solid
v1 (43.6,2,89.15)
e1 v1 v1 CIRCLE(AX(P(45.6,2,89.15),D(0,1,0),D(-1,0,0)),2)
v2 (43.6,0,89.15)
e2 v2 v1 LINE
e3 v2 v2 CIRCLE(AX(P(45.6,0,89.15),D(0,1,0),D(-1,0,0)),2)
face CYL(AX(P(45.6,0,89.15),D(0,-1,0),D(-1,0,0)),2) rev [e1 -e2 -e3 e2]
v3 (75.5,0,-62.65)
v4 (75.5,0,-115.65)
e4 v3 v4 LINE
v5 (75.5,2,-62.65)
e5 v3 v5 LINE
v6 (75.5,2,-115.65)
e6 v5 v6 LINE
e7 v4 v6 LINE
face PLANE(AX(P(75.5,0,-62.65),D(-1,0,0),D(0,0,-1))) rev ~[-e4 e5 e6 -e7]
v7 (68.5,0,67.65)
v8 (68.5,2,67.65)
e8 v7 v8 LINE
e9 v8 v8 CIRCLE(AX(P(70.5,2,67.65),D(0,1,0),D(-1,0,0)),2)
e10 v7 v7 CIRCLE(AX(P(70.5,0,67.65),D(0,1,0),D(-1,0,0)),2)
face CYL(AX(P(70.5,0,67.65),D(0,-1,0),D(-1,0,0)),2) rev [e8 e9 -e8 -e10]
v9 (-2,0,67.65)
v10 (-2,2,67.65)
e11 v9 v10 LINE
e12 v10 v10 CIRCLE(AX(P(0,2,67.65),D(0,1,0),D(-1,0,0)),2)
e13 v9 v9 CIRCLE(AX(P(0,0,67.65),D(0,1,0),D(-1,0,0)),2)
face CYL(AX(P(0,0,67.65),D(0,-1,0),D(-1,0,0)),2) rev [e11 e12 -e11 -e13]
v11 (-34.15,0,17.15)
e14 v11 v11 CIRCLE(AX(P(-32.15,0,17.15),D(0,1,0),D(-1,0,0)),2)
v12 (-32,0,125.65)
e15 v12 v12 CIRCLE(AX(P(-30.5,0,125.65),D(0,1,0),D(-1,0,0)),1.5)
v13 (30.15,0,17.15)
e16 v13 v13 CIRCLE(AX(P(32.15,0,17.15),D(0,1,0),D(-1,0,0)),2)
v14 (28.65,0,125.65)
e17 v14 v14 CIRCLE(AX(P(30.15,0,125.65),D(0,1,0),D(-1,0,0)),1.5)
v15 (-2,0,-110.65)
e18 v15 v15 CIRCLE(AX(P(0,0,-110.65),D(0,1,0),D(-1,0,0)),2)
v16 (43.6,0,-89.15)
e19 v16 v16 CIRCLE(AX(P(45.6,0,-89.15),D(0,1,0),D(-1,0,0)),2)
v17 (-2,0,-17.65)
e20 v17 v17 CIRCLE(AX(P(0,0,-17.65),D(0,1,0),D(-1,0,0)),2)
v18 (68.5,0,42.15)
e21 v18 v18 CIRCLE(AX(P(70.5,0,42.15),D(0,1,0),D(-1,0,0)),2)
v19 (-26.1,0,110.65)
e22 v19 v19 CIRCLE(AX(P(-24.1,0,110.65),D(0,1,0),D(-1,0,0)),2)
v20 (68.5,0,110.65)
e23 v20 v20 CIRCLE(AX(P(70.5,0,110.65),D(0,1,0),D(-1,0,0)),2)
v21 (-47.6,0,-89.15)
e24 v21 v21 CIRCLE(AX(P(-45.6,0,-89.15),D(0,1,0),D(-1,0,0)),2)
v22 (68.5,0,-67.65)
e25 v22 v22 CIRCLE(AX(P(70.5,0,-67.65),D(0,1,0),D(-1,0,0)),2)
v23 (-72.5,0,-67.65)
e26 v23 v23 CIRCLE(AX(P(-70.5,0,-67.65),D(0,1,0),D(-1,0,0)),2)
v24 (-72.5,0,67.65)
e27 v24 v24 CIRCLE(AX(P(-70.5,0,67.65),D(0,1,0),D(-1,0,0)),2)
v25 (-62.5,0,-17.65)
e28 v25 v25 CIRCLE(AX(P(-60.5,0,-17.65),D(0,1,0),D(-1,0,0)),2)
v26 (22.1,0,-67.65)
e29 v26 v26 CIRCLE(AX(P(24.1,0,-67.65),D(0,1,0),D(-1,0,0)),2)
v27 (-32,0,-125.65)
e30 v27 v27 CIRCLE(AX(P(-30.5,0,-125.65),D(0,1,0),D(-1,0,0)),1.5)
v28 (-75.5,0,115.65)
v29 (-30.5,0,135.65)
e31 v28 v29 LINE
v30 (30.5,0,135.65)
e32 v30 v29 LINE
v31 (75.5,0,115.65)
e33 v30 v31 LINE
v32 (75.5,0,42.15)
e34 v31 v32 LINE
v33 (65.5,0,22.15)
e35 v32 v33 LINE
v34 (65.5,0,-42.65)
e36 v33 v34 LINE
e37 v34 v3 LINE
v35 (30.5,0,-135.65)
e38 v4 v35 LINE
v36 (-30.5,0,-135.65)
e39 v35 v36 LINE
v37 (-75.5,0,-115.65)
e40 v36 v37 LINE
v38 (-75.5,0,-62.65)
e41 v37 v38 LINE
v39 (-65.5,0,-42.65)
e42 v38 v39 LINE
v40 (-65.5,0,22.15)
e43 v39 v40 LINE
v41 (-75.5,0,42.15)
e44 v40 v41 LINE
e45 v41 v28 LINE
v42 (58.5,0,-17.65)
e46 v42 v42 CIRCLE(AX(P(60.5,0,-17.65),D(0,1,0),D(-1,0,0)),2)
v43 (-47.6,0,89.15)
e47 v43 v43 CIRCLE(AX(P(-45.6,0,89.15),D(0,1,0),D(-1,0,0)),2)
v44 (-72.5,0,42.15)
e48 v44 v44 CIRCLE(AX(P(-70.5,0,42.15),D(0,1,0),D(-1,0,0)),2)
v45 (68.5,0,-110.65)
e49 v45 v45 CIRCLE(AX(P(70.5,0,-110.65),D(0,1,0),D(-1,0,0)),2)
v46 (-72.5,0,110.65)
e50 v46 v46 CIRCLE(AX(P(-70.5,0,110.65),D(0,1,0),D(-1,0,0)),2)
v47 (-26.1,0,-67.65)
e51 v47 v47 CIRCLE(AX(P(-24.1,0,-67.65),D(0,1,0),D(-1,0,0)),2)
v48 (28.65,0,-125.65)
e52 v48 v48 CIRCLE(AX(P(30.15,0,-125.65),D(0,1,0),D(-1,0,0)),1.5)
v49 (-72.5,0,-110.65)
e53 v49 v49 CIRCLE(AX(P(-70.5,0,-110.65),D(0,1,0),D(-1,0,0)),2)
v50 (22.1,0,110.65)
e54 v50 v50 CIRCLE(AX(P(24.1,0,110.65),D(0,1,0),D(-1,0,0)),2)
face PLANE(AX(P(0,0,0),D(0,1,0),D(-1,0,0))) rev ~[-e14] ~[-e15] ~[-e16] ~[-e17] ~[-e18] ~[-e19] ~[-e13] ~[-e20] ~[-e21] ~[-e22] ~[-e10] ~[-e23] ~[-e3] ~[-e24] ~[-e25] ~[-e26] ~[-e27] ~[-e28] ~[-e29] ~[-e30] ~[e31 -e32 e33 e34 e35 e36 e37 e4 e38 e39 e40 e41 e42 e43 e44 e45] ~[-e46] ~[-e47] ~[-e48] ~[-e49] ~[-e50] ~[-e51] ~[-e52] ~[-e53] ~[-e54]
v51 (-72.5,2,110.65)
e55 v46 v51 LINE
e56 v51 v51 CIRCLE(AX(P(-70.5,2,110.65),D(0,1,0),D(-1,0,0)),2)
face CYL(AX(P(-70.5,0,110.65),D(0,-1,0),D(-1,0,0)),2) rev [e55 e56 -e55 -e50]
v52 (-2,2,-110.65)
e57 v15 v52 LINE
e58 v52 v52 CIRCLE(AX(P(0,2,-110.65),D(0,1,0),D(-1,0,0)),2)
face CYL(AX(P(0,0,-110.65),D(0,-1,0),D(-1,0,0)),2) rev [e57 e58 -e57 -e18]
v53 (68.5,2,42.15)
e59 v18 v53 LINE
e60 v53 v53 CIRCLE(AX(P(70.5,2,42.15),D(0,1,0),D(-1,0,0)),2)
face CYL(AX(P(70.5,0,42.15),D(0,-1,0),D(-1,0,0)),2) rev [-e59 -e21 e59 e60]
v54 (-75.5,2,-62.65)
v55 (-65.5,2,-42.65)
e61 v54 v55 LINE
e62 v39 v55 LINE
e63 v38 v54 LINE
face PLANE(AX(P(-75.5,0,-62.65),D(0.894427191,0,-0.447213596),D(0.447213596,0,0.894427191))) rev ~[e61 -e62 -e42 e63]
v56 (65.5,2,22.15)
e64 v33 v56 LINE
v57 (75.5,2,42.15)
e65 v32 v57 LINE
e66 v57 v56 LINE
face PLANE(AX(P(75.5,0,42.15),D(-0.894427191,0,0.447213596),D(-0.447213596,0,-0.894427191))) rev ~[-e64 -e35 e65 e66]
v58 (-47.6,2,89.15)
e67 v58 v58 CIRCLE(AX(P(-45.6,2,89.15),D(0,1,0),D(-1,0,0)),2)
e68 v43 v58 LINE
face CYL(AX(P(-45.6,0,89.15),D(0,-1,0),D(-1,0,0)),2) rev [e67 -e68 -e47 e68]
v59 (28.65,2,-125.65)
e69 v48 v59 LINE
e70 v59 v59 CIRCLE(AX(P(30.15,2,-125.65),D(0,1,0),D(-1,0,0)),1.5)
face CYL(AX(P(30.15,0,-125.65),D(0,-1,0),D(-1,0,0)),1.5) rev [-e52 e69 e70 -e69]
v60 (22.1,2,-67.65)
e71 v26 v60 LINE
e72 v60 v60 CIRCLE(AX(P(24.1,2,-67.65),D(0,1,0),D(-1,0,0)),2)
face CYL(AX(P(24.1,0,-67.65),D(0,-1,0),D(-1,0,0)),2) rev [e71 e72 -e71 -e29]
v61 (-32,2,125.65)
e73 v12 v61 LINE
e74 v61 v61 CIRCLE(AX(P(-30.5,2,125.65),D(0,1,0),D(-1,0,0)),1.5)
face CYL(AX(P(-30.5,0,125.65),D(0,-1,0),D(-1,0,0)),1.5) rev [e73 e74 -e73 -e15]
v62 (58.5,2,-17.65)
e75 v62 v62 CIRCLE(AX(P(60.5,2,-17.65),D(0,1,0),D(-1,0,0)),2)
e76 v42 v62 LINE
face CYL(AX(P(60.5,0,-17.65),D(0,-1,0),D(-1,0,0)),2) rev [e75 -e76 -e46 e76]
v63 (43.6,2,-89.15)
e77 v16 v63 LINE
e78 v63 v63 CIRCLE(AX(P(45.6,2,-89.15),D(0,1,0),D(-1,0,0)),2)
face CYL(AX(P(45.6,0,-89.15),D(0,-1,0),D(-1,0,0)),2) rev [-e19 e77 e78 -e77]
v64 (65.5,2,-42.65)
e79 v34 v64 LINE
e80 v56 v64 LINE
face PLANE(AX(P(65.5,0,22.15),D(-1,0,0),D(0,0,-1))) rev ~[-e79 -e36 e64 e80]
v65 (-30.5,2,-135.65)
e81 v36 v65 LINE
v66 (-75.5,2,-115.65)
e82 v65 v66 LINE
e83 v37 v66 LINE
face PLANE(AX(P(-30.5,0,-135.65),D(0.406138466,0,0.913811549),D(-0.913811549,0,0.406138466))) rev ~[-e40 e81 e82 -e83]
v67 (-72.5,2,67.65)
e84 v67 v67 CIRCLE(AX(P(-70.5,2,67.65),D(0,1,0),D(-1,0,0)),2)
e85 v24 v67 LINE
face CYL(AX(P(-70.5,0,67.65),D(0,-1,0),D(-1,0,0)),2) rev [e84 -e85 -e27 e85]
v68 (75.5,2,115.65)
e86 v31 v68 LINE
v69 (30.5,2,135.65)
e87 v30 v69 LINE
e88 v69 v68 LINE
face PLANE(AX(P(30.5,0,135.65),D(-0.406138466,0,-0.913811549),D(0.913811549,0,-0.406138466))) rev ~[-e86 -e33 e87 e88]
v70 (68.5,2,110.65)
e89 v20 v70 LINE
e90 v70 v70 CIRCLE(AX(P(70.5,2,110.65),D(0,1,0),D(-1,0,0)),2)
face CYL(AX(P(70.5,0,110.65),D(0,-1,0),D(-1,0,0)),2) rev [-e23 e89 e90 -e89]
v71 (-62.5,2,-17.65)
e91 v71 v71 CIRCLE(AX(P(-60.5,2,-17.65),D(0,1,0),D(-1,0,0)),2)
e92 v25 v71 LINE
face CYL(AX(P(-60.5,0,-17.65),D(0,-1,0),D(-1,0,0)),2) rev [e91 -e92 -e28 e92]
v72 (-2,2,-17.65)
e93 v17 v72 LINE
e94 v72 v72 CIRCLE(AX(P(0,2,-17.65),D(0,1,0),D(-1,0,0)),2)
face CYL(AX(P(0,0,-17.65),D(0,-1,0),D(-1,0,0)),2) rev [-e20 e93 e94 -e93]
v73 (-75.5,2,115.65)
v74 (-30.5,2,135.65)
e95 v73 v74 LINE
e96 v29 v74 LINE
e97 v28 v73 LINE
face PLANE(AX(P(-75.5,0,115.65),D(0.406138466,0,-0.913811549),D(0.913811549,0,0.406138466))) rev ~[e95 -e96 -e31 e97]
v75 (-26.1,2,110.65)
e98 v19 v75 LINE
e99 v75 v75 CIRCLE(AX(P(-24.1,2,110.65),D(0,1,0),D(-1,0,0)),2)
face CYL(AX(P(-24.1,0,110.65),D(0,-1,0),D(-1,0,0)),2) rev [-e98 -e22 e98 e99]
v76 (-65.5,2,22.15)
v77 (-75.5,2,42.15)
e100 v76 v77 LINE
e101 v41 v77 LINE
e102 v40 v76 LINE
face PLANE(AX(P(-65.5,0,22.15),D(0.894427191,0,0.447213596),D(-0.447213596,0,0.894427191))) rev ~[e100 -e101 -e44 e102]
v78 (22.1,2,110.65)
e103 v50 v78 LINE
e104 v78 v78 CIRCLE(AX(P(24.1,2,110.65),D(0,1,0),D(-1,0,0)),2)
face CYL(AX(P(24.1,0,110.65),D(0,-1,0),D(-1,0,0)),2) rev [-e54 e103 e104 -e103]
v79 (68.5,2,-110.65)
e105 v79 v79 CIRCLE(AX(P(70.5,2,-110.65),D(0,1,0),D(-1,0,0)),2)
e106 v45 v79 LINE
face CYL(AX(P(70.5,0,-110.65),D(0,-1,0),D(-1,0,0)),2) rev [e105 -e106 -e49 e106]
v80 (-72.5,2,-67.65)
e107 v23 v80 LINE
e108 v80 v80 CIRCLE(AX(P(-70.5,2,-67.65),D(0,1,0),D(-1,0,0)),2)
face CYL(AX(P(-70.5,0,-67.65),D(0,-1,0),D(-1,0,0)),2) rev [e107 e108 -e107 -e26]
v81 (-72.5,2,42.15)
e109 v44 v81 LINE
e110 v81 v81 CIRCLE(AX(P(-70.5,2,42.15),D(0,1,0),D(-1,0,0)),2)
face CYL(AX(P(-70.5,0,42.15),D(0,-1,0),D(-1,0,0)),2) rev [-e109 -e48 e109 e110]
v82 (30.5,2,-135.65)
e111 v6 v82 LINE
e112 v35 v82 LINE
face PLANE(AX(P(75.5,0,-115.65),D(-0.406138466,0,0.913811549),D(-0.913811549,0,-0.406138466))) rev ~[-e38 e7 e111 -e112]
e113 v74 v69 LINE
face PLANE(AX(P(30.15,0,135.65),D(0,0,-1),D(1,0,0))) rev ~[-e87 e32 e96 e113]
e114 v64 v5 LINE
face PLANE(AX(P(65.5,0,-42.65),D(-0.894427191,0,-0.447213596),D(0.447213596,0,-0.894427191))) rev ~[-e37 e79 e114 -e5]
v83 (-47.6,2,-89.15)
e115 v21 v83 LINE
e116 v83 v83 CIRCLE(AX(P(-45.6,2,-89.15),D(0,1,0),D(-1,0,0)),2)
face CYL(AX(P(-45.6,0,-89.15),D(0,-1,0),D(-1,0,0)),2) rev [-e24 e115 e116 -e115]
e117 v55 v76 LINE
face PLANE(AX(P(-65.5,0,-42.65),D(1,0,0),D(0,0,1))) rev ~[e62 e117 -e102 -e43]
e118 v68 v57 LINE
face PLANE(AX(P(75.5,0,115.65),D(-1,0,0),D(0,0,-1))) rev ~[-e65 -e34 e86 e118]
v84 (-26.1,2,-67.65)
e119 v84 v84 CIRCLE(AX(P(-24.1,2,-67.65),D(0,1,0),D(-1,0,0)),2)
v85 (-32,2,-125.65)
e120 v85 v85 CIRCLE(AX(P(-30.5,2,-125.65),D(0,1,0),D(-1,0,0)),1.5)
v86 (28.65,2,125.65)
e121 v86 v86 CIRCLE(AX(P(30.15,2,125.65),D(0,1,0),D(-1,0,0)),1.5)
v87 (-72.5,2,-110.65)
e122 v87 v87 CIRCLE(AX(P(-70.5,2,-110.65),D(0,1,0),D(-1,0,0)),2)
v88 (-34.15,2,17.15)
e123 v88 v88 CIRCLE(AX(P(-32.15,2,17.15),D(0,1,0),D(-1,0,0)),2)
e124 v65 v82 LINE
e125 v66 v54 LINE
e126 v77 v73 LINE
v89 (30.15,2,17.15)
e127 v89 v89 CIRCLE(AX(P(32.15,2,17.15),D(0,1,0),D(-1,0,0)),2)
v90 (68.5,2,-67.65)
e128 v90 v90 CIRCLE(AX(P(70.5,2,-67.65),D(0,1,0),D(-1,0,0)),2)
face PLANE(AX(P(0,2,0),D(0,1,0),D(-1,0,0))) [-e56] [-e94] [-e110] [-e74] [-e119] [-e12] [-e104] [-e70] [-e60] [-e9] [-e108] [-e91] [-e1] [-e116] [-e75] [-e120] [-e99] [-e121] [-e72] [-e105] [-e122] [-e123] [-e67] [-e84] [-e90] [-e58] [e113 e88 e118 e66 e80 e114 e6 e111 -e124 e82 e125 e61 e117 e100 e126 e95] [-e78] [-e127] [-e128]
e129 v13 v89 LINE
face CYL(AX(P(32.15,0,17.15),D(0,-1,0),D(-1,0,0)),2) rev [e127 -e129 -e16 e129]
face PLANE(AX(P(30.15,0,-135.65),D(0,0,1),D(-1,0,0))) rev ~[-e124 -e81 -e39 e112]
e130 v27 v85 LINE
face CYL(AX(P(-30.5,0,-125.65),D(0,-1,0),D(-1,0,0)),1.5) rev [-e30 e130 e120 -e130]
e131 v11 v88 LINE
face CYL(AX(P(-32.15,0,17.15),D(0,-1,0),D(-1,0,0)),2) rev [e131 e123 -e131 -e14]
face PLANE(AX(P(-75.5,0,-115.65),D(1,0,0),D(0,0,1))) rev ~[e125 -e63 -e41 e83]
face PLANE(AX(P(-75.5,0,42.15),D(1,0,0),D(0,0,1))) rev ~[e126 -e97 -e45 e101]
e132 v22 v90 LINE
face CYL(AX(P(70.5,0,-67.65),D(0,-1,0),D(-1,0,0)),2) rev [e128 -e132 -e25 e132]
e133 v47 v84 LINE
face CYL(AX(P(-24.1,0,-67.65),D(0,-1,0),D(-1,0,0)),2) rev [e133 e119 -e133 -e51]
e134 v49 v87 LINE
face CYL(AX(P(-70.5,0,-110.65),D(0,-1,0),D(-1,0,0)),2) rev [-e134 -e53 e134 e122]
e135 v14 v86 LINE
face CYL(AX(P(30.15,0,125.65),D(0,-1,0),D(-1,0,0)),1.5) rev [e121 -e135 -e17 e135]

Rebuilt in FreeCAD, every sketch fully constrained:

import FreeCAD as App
import Part
import Sketcher

V = App.Vector

doc = App.newDocument("Part")
body = doc.addObject("PartDesign::Body", "Body")

# Sketch on XZ plane
sketch1 = body.newObject("Sketcher::SketchObject", "Sketch")
sketch1.AttachmentSupport = (doc.getObject("XZ_Plane"), [""])
sketch1.MapMode = "FlatFace"
sketch1.addGeometry([
    Part.LineSegment(V(-30.5, -135.7, 0), V(-75.5, -115.7, 0)),  # 0
    Part.LineSegment(V(-75.5, -115.7, 0), V(-75.5, -62.6, 0)),  # 1
    Part.LineSegment(V(-75.5, -62.6, 0), V(-65.5, -42.6, 0)),  # 2
    Part.LineSegment(V(-65.5, -42.6, 0), V(-65.5, 22.1, 0)),  # 3
    Part.LineSegment(V(-65.5, 22.1, 0), V(-75.5, 42.1, 0)),  # 4
    Part.LineSegment(V(-75.5, 42.1, 0), V(-75.5, 115.7, 0)),  # 5
    Part.LineSegment(V(-75.5, 115.7, 0), V(-30.5, 135.7, 0)),  # 6
    Part.LineSegment(V(-30.5, 135.7, 0), V(30.5, 135.7, 0)),  # 7
    Part.LineSegment(V(30.5, 135.7, 0), V(75.5, 115.7, 0)),  # 8
    Part.LineSegment(V(75.5, 115.7, 0), V(75.5, 42.1, 0)),  # 9
    Part.LineSegment(V(75.5, 42.1, 0), V(65.5, 22.1, 0)),  # 10
    Part.LineSegment(V(65.5, 22.1, 0), V(65.5, -42.6, 0)),  # 11
    Part.LineSegment(V(65.5, -42.6, 0), V(75.5, -62.6, 0)),  # 12
    Part.LineSegment(V(75.5, -62.6, 0), V(75.5, -115.7, 0)),  # 13
    Part.LineSegment(V(75.5, -115.7, 0), V(30.5, -135.7, 0)),  # 14
    Part.LineSegment(V(30.5, -135.7, 0), V(-30.5, -135.7, 0)),  # 15
    Part.Circle(V(70.5, -110.7, 0), V(0, 0, 1), 2),  # 16
    Part.Circle(V(45.6, -89.2, 0), V(0, 0, 1), 2),  # 17
    Part.Circle(V(70.5, -67.7, 0), V(0, 0, 1), 2),  # 18
    Part.Circle(V(60.5, -17.6, 0), V(0, 0, 1), 2),  # 19
    Part.Circle(V(24.1, -67.7, 0), V(0, 0, 1), 2),  # 20
    Part.Circle(V(0, -110.7, 0), V(0, 0, 1), 2),  # 21
    Part.Circle(V(-70.5, -110.7, 0), V(0, 0, 1), 2),  # 22
    Part.Circle(V(-45.6, -89.2, 0), V(0, 0, 1), 2),  # 23
    Part.Circle(V(-24.1, -67.7, 0), V(0, 0, 1), 2),  # 24
    Part.Circle(V(0, -17.6, 0), V(0, 0, 1), 2),  # 25
    Part.Circle(V(-70.5, -67.7, 0), V(0, 0, 1), 2),  # 26
    Part.Circle(V(-60.5, -17.6, 0), V(0, 0, 1), 2),  # 27
    Part.Circle(V(70.5, 42.1, 0), V(0, 0, 1), 2),  # 28
    Part.Circle(V(70.5, 67.7, 0), V(0, 0, 1), 2),  # 29
    Part.Circle(V(32.1, 17.1, 0), V(0, 0, 1), 2),  # 30
    Part.Circle(V(45.6, 89.2, 0), V(0, 0, 1), 2),  # 31
    Part.Circle(V(70.5, 110.7, 0), V(0, 0, 1), 2),  # 32
    Part.Circle(V(24.1, 110.7, 0), V(0, 0, 1), 2),  # 33
    Part.Circle(V(-32.1, 17.1, 0), V(0, 0, 1), 2),  # 34
    Part.Circle(V(0, 67.7, 0), V(0, 0, 1), 2),  # 35
    Part.Circle(V(-70.5, 42.1, 0), V(0, 0, 1), 2),  # 36
    Part.Circle(V(-70.5, 67.7, 0), V(0, 0, 1), 2),  # 37
    Part.Circle(V(-24.1, 110.7, 0), V(0, 0, 1), 2),  # 38
    Part.Circle(V(-45.6, 89.2, 0), V(0, 0, 1), 2),  # 39
    Part.Circle(V(-70.5, 110.7, 0), V(0, 0, 1), 2),  # 40
], False)
sketch1.addConstraint([
    Sketcher.Constraint("Coincident", 0, 2, 1, 1),
    Sketcher.Constraint("Coincident", 1, 2, 2, 1),
    Sketcher.Constraint("Coincident", 2, 2, 3, 1),
    Sketcher.Constraint("Coincident", 3, 2, 4, 1),
    Sketcher.Constraint("Coincident", 4, 2, 5, 1),
    Sketcher.Constraint("Coincident", 5, 2, 6, 1),
    Sketcher.Constraint("Coincident", 6, 2, 7, 1),
    Sketcher.Constraint("Coincident", 7, 2, 8, 1),
    Sketcher.Constraint("Coincident", 8, 2, 9, 1),
    Sketcher.Constraint("Coincident", 9, 2, 10, 1),
    Sketcher.Constraint("Coincident", 10, 2, 11, 1),
    Sketcher.Constraint("Coincident", 11, 2, 12, 1),
    Sketcher.Constraint("Coincident", 12, 2, 13, 1),
    Sketcher.Constraint("Coincident", 13, 2, 14, 1),
    Sketcher.Constraint("Coincident", 14, 2, 15, 1),
    Sketcher.Constraint("Coincident", 15, 2, 0, 1),
    Sketcher.Constraint("Vertical", 1),
    Sketcher.Constraint("Vertical", 3),
    Sketcher.Constraint("Vertical", 5),
    Sketcher.Constraint("Horizontal", 7),
    Sketcher.Constraint("Vertical", 9),
    Sketcher.Constraint("Vertical", 11),
    Sketcher.Constraint("Vertical", 13),
    Sketcher.Constraint("Horizontal", 15),
    Sketcher.Constraint("Equal", 16, 17),
    Sketcher.Constraint("Equal", 17, 18),
    Sketcher.Constraint("Equal", 18, 19),
    Sketcher.Constraint("Equal", 19, 20),
    Sketcher.Constraint("Equal", 20, 21),
    Sketcher.Constraint("Equal", 21, 22),
    Sketcher.Constraint("Equal", 22, 23),
    Sketcher.Constraint("Equal", 23, 24),
    Sketcher.Constraint("Equal", 24, 25),
    Sketcher.Constraint("Equal", 25, 26),
    Sketcher.Constraint("Equal", 26, 27),
    Sketcher.Constraint("Equal", 27, 28),
    Sketcher.Constraint("Equal", 28, 29),
    Sketcher.Constraint("Equal", 29, 30),
    Sketcher.Constraint("Equal", 30, 31),
    Sketcher.Constraint("Equal", 31, 32),
    Sketcher.Constraint("Equal", 32, 33),
    Sketcher.Constraint("Equal", 33, 34),
    Sketcher.Constraint("Equal", 34, 35),
    Sketcher.Constraint("Equal", 35, 36),
    Sketcher.Constraint("Equal", 36, 37),
    Sketcher.Constraint("Equal", 37, 38),
    Sketcher.Constraint("Equal", 38, 39),
    Sketcher.Constraint("Equal", 39, 40),
    Sketcher.Constraint("Symmetric", 26, 3, 29, 3, -1, 1),
    Sketcher.Constraint("Symmetric", 23, 3, 31, 3, -1, 1),
    Sketcher.Constraint("Symmetric", 22, 3, 32, 3, -1, 1),
    Sketcher.Constraint("Symmetric", 18, 3, 37, 3, -1, 1),
    Sketcher.Constraint("Symmetric", 17, 3, 39, 3, -1, 1),
    Sketcher.Constraint("Symmetric", 16, 3, 40, 3, -1, 1),
    Sketcher.Constraint("Symmetric", 0, 2, 8, 2, -1, 1),
    Sketcher.Constraint("Symmetric", 5, 2, 13, 2, -1, 1),
    Sketcher.Constraint("Symmetric", 6, 2, 14, 2, -1, 1),
    Sketcher.Constraint("Symmetric", 16, 3, 22, 3, -2),
    Sketcher.Constraint("Symmetric", 17, 3, 23, 3, -2),
    Sketcher.Constraint("Symmetric", 20, 3, 24, 3, -2),
    Sketcher.Constraint("Symmetric", 18, 3, 26, 3, -2),
    Sketcher.Constraint("Symmetric", 19, 3, 27, 3, -2),
    Sketcher.Constraint("Symmetric", 30, 3, 34, 3, -2),
    Sketcher.Constraint("Symmetric", 28, 3, 36, 3, -2),
    Sketcher.Constraint("Symmetric", 33, 3, 38, 3, -2),
    Sketcher.Constraint("Symmetric", 5, 2, 8, 2, -2),
    Sketcher.Constraint("Symmetric", 3, 2, 10, 2, -2),
    Sketcher.Constraint("PointOnObject", 21, 3, -2),
    Sketcher.Constraint("PointOnObject", 25, 3, -2),
    Sketcher.Constraint("PointOnObject", 35, 3, -2),
    Sketcher.Constraint("Parallel", 0, 8),
    Sketcher.Constraint("Parallel", 2, 10),
    Sketcher.Constraint("Parallel", 4, 12),
    Sketcher.Constraint("Horizontal", 18, 3, 20, 3),
    Sketcher.Constraint("Horizontal", 16, 3, 21, 3),
    Sketcher.Constraint("Horizontal", 19, 3, 25, 3),
    Sketcher.Constraint("Horizontal", 32, 3, 33, 3),
    Sketcher.Constraint("Horizontal", 29, 3, 35, 3),
    Sketcher.Constraint("Horizontal", 36, 3, 4, 2),
    Sketcher.Constraint("Horizontal", 4, 2, 9, 2),
    Sketcher.Constraint("Horizontal", 2, 2, 11, 2),
    Sketcher.Constraint("Vertical", 16, 3, 18, 3),
    Sketcher.Constraint("Vertical", 18, 3, 28, 3),
    Sketcher.Constraint("Vertical", 20, 3, 33, 3),
    Sketcher.Constraint("Vertical", 7, 2, 14, 2),
    Sketcher.Constraint("Diameter", 16, 4.0),
    Sketcher.Constraint("DistanceX", 7, 1, 7, 2, 61.0),
    Sketcher.Constraint("DistanceY", 1, 1, 1, 2, 53.0),
    Sketcher.Constraint("DistanceY", 3, 1, 3, 2, 64.8),
    Sketcher.Constraint("DistanceY", 5, 1, 5, 2, 73.5),
    Sketcher.Constraint("DistanceY", 16, 3, 18, 3, 43.0),
    Sketcher.Constraint("DistanceX", 19, 3, 18, 3, 10.0),
    Sketcher.Constraint("DistanceY", 18, 3, 19, 3, 50.0),
    Sketcher.Constraint("DistanceX", 22, 3, 16, 3, 141.0),
    Sketcher.Constraint("DistanceY", 30, 3, 28, 3, 25.0),
    Sketcher.Constraint("DistanceY", 28, 3, 31, 3, 47.0),
    Sketcher.Constraint("DistanceX", 0, 2, 22, 3, 5.0),
    Sketcher.Constraint("DistanceY", 0, 2, 22, 3, 5.0),
    Sketcher.Constraint("DistanceX", 1, 2, 2, 2, 10.0),
    Sketcher.Constraint("DistanceY", 1, 2, 2, 2, 20.0),
    Sketcher.Constraint("DistanceY", 38, 3, 6, 2, 25.0),
    Sketcher.Constraint("DistanceX", -1, 1, 17, 3, 45.6),
    Sketcher.Constraint("DistanceX", -1, 1, 20, 3, 24.1),
    Sketcher.Constraint("DistanceX", 34, 3, 30, 3, 64.3),
])
pad1 = body.newObject("PartDesign::Pad", "Pad")
pad1.Profile = sketch1
pad1.Length = 2
pad1.Reversed = True

# Sketch on XZ plane
sketch2 = body.newObject("Sketcher::SketchObject", "Sketch001")
sketch2.AttachmentSupport = (doc.getObject("XZ_Plane"), [""])
sketch2.MapMode = "FlatFace"
sketch2.addGeometry([
    Part.Circle(V(-30.5, 125.7, 0), V(0, 0, 1), 1.5),
    Part.Circle(V(30.1, 125.7, 0), V(0, 0, 1), 1.5),
    Part.Circle(V(-30.5, -125.7, 0), V(0, 0, 1), 1.5),
    Part.Circle(V(30.1, -125.7, 0), V(0, 0, 1), 1.5),
], False)
sketch2.addConstraint([
    Sketcher.Constraint("Equal", 0, 1),
    Sketcher.Constraint("Equal", 1, 2),
    Sketcher.Constraint("Equal", 2, 3),
    Sketcher.Constraint("Symmetric", 0, 3, 2, 3, -1),
    Sketcher.Constraint("Symmetric", 1, 3, 3, 3, -1),
    Sketcher.Constraint("Horizontal", 0, 3, 1, 3),
    Sketcher.Constraint("Diameter", 0, 3.0),
    Sketcher.Constraint("DistanceX", 0, 3, -1, 1, 30.5),
    Sketcher.Constraint("DistanceY", 2, 3, 0, 3, 251.3),
    Sketcher.Constraint("DistanceX", -1, 1, 1, 3, 30.15),
])
pocket1 = body.newObject("PartDesign::Pocket", "Pocket")
pocket1.Profile = sketch2
pocket1.Length = 2

doc.recompute()
